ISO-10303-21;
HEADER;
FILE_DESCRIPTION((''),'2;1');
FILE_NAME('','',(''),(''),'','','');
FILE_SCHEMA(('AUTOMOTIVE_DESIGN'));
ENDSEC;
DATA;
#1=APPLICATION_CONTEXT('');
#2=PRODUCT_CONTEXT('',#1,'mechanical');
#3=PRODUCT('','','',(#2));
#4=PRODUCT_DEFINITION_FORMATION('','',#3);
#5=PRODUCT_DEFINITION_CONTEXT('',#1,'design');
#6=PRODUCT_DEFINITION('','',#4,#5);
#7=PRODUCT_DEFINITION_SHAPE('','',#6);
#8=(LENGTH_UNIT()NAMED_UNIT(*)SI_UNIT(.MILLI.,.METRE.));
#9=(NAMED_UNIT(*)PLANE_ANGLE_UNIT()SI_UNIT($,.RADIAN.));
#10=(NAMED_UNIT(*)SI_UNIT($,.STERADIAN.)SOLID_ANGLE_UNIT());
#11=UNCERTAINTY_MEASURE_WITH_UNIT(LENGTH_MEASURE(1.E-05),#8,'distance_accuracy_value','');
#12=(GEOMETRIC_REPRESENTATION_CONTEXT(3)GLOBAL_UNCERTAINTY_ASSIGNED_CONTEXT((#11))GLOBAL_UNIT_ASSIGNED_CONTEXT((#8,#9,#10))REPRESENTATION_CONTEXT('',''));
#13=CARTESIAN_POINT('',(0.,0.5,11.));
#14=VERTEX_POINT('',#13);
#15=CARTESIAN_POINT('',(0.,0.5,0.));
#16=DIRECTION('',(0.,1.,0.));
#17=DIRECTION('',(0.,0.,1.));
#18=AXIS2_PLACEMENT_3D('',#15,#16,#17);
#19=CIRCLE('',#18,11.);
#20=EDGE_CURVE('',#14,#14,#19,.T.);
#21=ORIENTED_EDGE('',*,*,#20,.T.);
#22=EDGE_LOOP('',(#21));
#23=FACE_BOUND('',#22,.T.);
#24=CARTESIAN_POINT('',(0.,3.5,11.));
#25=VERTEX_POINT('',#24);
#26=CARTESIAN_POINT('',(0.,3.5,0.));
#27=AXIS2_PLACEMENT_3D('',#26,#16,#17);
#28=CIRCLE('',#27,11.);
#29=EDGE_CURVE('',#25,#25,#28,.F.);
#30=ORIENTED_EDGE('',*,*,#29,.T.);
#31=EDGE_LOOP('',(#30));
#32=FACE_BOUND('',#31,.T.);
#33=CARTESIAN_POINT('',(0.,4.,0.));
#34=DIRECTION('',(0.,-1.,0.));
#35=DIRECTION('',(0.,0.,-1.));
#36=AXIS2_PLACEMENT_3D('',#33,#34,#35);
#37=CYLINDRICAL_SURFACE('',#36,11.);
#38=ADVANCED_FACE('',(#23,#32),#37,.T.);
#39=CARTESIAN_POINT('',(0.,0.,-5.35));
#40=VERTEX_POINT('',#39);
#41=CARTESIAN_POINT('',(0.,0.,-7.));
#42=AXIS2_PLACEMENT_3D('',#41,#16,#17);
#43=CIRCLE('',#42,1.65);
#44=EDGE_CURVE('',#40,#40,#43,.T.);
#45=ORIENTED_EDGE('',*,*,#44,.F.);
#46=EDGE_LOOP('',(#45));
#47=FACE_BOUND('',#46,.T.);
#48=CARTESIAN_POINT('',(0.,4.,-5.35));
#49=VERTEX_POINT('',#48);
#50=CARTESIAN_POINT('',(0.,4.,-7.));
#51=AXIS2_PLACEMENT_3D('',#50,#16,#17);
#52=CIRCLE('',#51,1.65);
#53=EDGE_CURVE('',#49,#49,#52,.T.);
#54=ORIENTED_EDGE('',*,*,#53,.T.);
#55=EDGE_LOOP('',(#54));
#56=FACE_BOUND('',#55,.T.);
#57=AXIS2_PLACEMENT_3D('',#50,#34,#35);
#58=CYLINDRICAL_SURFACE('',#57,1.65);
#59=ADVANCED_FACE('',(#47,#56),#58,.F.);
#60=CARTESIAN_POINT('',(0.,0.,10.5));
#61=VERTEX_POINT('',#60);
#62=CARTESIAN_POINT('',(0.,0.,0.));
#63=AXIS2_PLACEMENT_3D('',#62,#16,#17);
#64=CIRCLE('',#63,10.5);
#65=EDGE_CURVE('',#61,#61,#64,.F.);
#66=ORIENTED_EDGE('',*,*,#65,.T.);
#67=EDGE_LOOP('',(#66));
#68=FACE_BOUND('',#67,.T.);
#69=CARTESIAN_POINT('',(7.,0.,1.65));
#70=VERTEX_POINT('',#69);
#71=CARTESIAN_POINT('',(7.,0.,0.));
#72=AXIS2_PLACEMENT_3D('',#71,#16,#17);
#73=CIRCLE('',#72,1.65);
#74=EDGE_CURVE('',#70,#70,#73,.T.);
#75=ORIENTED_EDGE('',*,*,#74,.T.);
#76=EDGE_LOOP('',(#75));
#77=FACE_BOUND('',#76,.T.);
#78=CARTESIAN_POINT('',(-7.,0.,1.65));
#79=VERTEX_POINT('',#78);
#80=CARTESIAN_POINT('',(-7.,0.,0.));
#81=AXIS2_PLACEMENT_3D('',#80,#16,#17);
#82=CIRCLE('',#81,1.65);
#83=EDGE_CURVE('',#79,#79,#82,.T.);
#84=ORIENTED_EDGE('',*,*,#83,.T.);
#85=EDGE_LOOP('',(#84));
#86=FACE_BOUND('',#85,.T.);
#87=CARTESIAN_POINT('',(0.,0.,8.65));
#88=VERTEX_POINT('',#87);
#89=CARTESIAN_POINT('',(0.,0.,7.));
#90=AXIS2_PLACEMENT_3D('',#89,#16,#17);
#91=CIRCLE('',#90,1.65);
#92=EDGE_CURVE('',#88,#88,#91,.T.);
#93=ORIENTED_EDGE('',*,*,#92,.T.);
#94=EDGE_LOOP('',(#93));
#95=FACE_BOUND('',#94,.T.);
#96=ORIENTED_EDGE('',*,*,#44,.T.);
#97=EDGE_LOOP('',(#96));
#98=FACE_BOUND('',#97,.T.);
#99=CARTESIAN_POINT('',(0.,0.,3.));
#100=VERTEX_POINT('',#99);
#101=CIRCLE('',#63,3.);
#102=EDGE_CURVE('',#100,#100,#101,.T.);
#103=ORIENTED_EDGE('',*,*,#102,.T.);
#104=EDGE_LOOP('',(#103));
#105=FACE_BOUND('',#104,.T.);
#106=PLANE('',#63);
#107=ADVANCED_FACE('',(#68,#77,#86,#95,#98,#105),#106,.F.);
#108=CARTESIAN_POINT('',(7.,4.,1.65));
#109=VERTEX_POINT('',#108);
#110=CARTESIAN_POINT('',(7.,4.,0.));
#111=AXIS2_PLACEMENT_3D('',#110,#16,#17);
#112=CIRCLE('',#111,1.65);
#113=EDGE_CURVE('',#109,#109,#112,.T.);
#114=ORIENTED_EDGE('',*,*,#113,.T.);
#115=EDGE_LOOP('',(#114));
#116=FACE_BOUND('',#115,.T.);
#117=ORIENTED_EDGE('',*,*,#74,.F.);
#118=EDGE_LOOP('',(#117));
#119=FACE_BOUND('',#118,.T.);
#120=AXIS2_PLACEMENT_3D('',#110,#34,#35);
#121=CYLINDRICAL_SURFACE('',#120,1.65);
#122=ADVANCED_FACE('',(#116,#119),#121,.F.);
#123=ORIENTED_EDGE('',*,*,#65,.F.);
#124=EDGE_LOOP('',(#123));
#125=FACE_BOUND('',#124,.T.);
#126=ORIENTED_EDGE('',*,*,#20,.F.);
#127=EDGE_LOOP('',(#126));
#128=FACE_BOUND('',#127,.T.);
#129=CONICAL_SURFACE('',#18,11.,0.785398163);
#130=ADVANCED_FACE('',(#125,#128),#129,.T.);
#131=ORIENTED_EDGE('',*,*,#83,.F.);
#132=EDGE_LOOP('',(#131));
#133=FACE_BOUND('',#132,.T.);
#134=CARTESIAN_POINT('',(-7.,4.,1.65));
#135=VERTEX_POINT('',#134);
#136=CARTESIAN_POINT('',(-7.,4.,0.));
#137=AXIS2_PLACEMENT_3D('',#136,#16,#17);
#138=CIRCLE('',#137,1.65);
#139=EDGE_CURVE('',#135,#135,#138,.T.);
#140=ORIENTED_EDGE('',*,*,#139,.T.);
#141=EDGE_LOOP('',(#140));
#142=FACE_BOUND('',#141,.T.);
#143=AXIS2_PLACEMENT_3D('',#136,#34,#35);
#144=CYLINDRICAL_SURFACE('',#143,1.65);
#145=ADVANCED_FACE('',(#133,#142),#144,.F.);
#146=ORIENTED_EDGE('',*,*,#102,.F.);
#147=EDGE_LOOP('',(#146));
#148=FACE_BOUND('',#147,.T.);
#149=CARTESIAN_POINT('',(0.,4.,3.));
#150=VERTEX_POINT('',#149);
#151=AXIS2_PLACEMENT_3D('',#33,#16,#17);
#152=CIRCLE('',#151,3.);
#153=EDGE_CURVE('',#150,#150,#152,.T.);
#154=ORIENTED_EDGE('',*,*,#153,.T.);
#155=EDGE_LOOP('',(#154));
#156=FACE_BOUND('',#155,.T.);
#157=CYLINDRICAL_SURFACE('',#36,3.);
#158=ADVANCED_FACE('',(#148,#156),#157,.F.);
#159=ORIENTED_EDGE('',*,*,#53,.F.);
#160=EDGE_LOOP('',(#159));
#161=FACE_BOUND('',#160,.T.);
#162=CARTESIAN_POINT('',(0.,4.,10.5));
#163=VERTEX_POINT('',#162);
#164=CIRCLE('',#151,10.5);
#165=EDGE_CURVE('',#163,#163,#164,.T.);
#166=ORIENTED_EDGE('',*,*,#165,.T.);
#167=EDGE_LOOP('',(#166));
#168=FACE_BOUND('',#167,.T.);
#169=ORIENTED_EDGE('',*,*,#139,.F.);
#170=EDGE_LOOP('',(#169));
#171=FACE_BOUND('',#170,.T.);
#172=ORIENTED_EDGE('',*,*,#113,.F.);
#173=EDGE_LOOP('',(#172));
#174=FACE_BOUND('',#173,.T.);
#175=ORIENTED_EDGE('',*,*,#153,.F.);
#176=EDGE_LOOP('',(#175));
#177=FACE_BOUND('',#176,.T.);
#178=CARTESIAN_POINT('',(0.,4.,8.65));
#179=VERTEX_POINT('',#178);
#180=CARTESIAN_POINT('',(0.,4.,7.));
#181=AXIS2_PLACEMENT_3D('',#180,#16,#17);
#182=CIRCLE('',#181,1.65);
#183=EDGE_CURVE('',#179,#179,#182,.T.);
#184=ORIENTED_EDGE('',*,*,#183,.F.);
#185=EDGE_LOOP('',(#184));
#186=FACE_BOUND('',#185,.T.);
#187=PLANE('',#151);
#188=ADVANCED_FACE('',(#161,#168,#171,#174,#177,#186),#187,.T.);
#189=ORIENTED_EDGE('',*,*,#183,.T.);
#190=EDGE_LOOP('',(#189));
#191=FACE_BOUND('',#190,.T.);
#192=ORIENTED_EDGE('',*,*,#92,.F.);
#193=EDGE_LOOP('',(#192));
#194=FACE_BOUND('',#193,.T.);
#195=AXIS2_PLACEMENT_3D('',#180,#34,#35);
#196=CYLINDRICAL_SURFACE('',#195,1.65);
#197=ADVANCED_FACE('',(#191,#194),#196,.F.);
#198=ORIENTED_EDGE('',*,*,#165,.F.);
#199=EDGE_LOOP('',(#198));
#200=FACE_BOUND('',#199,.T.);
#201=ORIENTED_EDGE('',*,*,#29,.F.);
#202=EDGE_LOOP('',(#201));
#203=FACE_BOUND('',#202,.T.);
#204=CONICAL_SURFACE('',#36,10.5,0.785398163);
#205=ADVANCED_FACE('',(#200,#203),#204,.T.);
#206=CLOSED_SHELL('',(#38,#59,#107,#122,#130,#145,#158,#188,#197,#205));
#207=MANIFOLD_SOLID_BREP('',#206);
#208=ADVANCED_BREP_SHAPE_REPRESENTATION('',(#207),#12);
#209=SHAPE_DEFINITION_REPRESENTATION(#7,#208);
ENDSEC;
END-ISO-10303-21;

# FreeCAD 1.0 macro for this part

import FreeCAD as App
import Part
import Sketcher

V = App.Vector
Q = App.Units.Quantity


def edges_at(feature, points):
    """Names of the edges that pass closest to the given points."""
    edges = feature.Shape.Edges
    near = lambda p: min(range(len(edges)), key=lambda i: edges[i].distToShape(Part.Vertex(*p))[0])
    return sorted({f"Edge{near(p) + 1}" for p in points})

doc = App.newDocument("Part")
body = doc.addObject("PartDesign::Body", "Body")

# Sketch on XZ plane
sketch1 = body.newObject("Sketcher::SketchObject", "Sketch")
sketch1.AttachmentSupport = (doc.getObject("XZ_Plane"), [""])
sketch1.MapMode = "FlatFace"
sketch1.addGeometry([
    Part.Circle(V(0, 0, 0), V(0, 0, 1), 11),  # 0
    Part.Circle(V(0, -7, 0), V(0, 0, 1), 1.65),  # 1
    Part.Circle(V(-7, 0, 0), V(0, 0, 1), 1.65),  # 2
    Part.Circle(V(0, 0, 0), V(0, 0, 1), 3),  # 3
    Part.Circle(V(7, 0, 0), V(0, 0, 1), 1.65),  # 4
    Part.Circle(V(0, 7, 0), V(0, 0, 1), 1.65),  # 5
], False)
sketch1.addConstraint([
    Sketcher.Constraint("Coincident", 0, 3, -1, 1),
    Sketcher.Constraint("Coincident", 3, 3, -1, 1),
    Sketcher.Constraint("Equal", 1, 2),
    Sketcher.Constraint("Equal", 2, 4),
    Sketcher.Constraint("Equal", 4, 5),
    Sketcher.Constraint("Symmetric", 2, 3, 4, 3, -1, 1),
    Sketcher.Constraint("Symmetric", 1, 3, 5, 3, -1, 1),
    Sketcher.Constraint("PointOnObject", 1, 3, -2),
    Sketcher.Constraint("PointOnObject", 2, 3, -1),
    Sketcher.Constraint("Diameter", 0, Q("22 mm")),
    Sketcher.Constraint("Diameter", 3, Q("6 mm")),
    Sketcher.Constraint("Diameter", 1, Q("3.3 mm")),
    Sketcher.Constraint("DistanceY", 1, 3, -1, 1, Q("7 mm")),
    Sketcher.Constraint("DistanceX", 2, 3, -1, 1, Q("7 mm")),
])
pad1 = body.newObject("PartDesign::Pad", "Pad")
pad1.Profile = sketch1
pad1.Length = 4
pad1.Reversed = True
doc.recompute()

chamfer = body.newObject("PartDesign::Chamfer", "Chamfer")
chamfer.Base = (pad1, edges_at(pad1, [(0, 0, -11), (0, 4, -11)]))
chamfer.Size = 0.5

doc.recompute()
